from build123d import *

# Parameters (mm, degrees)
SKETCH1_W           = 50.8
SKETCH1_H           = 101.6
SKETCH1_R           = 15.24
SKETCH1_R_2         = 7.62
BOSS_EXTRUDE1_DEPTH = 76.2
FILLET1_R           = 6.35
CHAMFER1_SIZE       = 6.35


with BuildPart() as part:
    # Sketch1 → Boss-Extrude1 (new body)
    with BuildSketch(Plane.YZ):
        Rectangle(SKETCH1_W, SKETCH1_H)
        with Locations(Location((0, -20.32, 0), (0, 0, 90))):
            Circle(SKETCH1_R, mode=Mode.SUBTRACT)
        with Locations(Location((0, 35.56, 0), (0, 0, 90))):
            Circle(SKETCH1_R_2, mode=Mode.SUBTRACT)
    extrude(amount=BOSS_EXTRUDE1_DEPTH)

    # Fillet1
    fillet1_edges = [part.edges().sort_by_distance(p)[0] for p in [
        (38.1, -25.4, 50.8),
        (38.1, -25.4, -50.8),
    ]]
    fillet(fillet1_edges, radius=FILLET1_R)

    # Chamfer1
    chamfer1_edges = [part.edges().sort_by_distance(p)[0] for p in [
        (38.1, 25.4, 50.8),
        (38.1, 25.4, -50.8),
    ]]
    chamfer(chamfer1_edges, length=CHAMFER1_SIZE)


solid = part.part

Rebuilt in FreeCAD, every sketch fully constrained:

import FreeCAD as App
import Part
import Sketcher

V = App.Vector
Q = App.Units.Quantity


def edges_at(feature, points):
    """Names of the edges that pass closest to the given points."""
    edges = feature.Shape.Edges
    near = lambda p: min(range(len(edges)), key=lambda i: edges[i].distToShape(Part.Vertex(*p))[0])
    return sorted({f"Edge{near(p) + 1}" for p in points})


def add_polygon(sketch, points):
    """Adds a closed chain of lines whose ends are joined by coincident constraints."""
    first, n = sketch.GeometryCount, len(points)
    for a, b in zip(points, points[1:] + points[:1]):
        sketch.addGeometry(Part.LineSegment(App.Vector(*a, 0), App.Vector(*b, 0)), False)
    for i in range(n):
        sketch.addConstraint(Sketcher.Constraint("Coincident", first + i, 2, first + (i + 1) % n, 1))

doc = App.newDocument("Part")
body = doc.addObject("PartDesign::Body", "Body")

# Sketch on YZ plane
sketch1 = doc.addObject("Sketcher::SketchObject", "Sketch")
body.addObject(sketch1)
sketch1.AttachmentSupport = (doc.YZ_Plane, [""])
sketch1.MapMode = "FlatFace"
add_polygon(sketch1, [(-25, 51), (-25, -51), (25, -51), (25, 51)])  # lines 0-3
sketch1.addGeometry(Part.Circle(V(0, -20, 0), V(0, 0, 1), 15), False)  # 4
sketch1.addGeometry(Part.Circle(V(0, 36, 0), V(0, 0, 1), 8), False)  # 5
sketch1.addConstraint([
    Sketcher.Constraint("Vertical", 0),
    Sketcher.Constraint("Horizontal", 1),
    Sketcher.Constraint("Vertical", 2),
    Sketcher.Constraint("Horizontal", 3),
    Sketcher.Constraint("Symmetric", 0, 2, 2, 2, -1, 1),
    Sketcher.Constraint("PointOnObject", 4, 3, -2),
    Sketcher.Constraint("PointOnObject", 5, 3, -2),
    Sketcher.Constraint("Diameter", 4, Q("1.2 in")),
    Sketcher.Constraint("Diameter", 5, Q("0.6 in")),
    Sketcher.Constraint("DistanceX", 1, 1, 1, 2, Q("2 in")),
    Sketcher.Constraint("DistanceY", 0, 2, 0, 1, Q("4 in")),
    Sketcher.Constraint("DistanceY", 4, 3, -1, 1, Q("0.8 in")),
    Sketcher.Constraint("DistanceY", -1, 1, 5, 3, Q("1.4 in")),
])
pad1 = doc.addObject("PartDesign::Pad", "Pad")
body.addObject(pad1)
pad1.Profile = sketch1
pad1.Length = Q("3 in")
doc.recompute()

fillet = doc.addObject("PartDesign::Fillet", "Fillet")
body.addObject(fillet)
fillet.Base = (pad1, edges_at(pad1, [(38.1, -25.4, 50.8), (38.1, -25.4, -50.8)]))
fillet.Radius = Q("0.25 in")
doc.recompute()

chamfer = doc.addObject("PartDesign::Chamfer", "Chamfer")
body.addObject(chamfer)
chamfer.Base = (fillet, edges_at(fillet, [(38.1, 25.4, 50.8), (38.1, 25.4, -50.8)]))
chamfer.Size = Q("0.25 in")

doc.recompute()
